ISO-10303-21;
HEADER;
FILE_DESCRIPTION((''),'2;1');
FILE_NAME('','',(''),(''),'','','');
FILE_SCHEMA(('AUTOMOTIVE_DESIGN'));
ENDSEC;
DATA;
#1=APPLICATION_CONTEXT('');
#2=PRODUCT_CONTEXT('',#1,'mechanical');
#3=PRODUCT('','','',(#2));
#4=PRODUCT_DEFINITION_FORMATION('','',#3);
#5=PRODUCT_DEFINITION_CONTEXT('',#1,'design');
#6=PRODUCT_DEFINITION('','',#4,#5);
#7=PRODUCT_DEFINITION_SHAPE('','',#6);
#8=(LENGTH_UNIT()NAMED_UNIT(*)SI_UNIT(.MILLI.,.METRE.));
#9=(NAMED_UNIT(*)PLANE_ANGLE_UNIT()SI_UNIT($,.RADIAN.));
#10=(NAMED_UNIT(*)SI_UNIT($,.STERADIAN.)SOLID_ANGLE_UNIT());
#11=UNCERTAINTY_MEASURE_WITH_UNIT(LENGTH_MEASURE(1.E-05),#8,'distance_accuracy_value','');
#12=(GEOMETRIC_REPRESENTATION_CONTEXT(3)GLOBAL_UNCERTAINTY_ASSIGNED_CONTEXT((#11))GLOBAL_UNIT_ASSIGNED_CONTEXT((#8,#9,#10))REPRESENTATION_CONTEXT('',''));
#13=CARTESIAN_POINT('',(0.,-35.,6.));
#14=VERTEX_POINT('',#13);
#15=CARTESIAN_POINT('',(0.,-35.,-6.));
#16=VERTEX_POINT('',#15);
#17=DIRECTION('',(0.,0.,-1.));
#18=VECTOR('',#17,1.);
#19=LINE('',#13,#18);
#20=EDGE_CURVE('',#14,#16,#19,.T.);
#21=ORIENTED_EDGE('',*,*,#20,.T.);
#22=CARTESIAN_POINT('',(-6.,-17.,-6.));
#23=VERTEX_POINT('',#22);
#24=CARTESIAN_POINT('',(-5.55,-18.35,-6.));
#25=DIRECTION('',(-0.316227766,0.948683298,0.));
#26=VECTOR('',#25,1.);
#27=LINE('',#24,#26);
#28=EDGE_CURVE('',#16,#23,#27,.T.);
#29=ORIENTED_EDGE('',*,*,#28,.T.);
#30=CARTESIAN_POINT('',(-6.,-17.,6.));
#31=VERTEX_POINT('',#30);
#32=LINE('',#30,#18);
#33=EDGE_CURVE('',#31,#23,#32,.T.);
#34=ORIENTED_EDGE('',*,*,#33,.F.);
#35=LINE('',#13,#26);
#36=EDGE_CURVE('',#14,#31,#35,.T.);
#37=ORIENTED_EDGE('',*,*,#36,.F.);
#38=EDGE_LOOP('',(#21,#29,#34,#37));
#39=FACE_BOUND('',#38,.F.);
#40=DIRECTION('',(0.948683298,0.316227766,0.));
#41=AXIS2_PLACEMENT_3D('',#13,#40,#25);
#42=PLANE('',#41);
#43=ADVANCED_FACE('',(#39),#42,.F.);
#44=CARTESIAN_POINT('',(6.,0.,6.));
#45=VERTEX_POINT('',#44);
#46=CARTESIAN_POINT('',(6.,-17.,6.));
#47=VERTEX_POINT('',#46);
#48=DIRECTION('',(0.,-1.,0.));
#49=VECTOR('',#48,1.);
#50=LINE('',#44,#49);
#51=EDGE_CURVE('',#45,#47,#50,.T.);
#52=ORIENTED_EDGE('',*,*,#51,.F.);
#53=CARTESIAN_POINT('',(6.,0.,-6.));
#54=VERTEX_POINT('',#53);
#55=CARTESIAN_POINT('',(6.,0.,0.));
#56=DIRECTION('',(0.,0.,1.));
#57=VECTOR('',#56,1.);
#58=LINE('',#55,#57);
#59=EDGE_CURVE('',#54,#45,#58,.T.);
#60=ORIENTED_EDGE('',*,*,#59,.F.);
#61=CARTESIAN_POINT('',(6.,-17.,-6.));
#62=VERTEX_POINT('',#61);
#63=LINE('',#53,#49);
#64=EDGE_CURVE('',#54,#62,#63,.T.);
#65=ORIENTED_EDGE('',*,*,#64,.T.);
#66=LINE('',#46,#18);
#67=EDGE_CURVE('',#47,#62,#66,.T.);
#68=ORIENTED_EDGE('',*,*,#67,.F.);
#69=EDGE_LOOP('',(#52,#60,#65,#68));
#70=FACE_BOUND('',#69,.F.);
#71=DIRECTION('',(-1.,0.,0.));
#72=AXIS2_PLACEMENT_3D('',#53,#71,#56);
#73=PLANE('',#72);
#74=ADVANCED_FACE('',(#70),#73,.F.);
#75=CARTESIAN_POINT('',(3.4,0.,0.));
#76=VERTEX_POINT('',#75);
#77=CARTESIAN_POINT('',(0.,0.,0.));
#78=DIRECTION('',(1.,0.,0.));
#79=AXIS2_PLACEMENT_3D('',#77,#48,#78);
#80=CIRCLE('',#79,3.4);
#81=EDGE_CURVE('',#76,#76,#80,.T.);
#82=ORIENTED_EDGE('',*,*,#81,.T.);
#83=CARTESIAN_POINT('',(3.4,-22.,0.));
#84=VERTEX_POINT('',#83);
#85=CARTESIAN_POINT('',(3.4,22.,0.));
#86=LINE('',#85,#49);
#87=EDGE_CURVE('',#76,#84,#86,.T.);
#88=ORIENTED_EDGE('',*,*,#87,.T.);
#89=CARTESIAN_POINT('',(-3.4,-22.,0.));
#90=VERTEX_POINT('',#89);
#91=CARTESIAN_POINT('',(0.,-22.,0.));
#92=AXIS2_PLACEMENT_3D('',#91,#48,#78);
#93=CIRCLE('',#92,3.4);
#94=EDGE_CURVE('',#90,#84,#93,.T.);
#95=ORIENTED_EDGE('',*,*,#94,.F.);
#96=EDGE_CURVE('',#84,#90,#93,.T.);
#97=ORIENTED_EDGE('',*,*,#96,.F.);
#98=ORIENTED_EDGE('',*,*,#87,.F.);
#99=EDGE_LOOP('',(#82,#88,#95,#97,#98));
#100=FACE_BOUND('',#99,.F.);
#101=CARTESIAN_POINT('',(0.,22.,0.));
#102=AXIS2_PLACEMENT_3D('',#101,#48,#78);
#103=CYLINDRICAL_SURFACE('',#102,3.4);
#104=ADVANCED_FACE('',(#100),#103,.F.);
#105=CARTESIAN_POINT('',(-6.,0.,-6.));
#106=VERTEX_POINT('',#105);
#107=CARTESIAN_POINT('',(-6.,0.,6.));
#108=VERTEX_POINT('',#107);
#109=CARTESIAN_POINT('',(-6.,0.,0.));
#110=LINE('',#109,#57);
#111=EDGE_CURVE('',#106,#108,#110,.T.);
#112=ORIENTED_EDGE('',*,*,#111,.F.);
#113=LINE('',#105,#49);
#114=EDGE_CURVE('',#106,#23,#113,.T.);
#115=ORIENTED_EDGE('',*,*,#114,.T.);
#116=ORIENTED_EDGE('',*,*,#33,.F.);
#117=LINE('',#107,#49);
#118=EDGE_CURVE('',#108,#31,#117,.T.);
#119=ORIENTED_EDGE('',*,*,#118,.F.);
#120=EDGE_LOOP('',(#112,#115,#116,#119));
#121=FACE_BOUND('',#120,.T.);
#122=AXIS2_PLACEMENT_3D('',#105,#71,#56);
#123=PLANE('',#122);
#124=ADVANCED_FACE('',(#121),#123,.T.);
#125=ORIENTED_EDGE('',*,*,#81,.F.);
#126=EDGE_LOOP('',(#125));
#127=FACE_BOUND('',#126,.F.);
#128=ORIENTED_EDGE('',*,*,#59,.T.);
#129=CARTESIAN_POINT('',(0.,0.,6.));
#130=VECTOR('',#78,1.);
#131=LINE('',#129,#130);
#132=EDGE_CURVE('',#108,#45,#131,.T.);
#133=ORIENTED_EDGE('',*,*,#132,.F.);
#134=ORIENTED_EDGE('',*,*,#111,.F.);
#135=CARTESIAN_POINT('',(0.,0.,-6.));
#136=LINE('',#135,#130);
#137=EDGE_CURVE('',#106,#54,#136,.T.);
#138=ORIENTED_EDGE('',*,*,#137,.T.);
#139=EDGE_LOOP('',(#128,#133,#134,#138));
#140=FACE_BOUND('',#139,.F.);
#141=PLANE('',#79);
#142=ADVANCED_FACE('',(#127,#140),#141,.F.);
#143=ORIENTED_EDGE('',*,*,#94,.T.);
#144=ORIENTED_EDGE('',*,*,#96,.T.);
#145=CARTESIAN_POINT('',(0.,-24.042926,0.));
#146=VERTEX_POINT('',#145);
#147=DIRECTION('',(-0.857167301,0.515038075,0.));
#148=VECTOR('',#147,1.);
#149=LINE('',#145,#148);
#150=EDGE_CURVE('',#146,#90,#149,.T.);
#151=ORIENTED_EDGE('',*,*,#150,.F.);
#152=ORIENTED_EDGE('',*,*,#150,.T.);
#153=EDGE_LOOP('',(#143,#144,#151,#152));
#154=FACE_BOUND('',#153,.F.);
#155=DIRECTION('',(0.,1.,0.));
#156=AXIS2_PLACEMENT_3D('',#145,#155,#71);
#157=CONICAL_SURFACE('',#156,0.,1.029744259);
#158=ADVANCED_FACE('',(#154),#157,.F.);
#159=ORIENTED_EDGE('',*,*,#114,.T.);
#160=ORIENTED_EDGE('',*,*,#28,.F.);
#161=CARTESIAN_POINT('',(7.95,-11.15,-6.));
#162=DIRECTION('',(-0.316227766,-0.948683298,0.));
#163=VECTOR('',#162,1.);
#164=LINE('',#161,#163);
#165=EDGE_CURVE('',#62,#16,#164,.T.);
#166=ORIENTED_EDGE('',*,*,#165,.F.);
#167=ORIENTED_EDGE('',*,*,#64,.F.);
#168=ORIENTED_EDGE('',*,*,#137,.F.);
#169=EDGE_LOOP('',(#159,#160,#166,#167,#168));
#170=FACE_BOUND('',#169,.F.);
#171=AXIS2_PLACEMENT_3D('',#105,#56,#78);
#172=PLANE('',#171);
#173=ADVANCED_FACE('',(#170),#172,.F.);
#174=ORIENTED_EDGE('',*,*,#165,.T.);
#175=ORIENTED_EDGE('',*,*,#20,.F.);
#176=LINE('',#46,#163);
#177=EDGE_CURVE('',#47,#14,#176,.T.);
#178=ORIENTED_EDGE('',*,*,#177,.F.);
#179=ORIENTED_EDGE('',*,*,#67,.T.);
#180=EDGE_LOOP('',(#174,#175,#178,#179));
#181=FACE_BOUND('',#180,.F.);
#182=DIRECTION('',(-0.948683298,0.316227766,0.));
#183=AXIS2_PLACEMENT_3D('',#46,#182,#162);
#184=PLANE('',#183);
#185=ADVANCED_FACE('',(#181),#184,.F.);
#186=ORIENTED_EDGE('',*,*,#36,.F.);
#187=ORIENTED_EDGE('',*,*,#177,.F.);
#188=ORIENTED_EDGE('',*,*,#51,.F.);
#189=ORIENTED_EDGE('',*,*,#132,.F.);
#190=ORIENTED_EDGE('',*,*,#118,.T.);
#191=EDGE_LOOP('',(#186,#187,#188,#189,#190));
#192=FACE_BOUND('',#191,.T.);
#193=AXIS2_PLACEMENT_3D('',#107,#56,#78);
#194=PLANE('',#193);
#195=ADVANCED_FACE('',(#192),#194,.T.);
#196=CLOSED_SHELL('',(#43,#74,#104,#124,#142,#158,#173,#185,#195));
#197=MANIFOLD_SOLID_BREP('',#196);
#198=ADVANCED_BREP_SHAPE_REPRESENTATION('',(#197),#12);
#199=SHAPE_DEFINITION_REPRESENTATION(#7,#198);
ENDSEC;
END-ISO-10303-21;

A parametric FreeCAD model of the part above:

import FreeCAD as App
import Part
import Sketcher
from FreeCAD import Vector


def add_polygon(sketch, points):
    """Adds a closed chain of lines whose ends are joined by coincident constraints."""
    first, n = sketch.GeometryCount, len(points)
    for a, b in zip(points, points[1:] + points[:1]):
        sketch.addGeometry(Part.LineSegment(App.Vector(*a, 0), App.Vector(*b, 0)), False)
    for i in range(n):
        sketch.addConstraint(Sketcher.Constraint("Coincident", first + i, 2, first + (i + 1) % n, 1))

doc = App.newDocument("Part")
body = doc.addObject("PartDesign::Body", "Body")

sketch1 = body.newObject("Sketcher::SketchObject", "Sketch")
sketch1.AttachmentSupport = (doc.getObject("XZ_Plane"), [""])
sketch1.MapMode = "FlatFace"
add_polygon(sketch1, [(-6, 6), (-6, -6), (6, -6), (6, 6)])
sketch1.addConstraint([
    Sketcher.Constraint("Vertical", 0),
    Sketcher.Constraint("Horizontal", 1),
    Sketcher.Constraint("Vertical", 2),
    Sketcher.Constraint("Horizontal", 3),
    Sketcher.Constraint("Symmetric", 0, 2, 2, 2, -1, 1),
    Sketcher.Constraint("Equal", 3, 0),
    Sketcher.Constraint("DistanceX", 1, 1, 1, 2, 12.0),
])
pad1 = body.newObject("PartDesign::Pad", "Pad")
pad1.Profile = sketch1
pad1.Length = 35

sketch2 = body.newObject("Sketcher::SketchObject", "Sketch001")
sketch2.AttachmentSupport = (doc.getObject("XY_Plane"), [""])
sketch2.MapMode = "FlatFace"
sketch2.AttachmentOffset = App.Placement(Vector(0, 0, 6), App.Rotation())
add_polygon(sketch2, [(-6, -35), (0, -35), (-6, -17)])
add_polygon(sketch2, [(6, -17), (0, -35), (6, -35)])
sketch2.addConstraint([
    Sketcher.Constraint("Horizontal", 0),
    Sketcher.Constraint("Vertical", 2),
    Sketcher.Constraint("Horizontal", 4),
    Sketcher.Constraint("Vertical", 5),
    Sketcher.Constraint("Coincident", 3, 2, 0, 2),
    Sketcher.Constraint("Symmetric", 1, 2, 5, 2, -2),
    Sketcher.Constraint("PointOnObject", 0, 2, -2),
    Sketcher.Constraint("DistanceX", 0, 1, 0, 2, 6.0),
    Sketcher.Constraint("DistanceY", 2, 2, 2, 1, 18.0),
    Sketcher.Constraint("DistanceY", 0, 2, -1, 1, 35.0),
])
pocket1 = body.newObject("PartDesign::Pocket", "Pocket")
pocket1.Profile = sketch2
pocket1.Length = 25

sketch3 = body.newObject("Sketcher::SketchObject", "Sketch002")
sketch3.AttachmentSupport = (doc.getObject("XZ_Plane"), [""])
sketch3.MapMode = "FlatFace"
sketch3.addGeometry(Part.Circle(Vector(0, 0, 0), Vector(0, 0, 1), 3.4), False)
sketch3.addConstraint([
    Sketcher.Constraint("Coincident", 0, 3, -1, 1),
    Sketcher.Constraint("Diameter", 0, 6.8),
])
doc.recompute()
hole = body.newObject("PartDesign::Hole", "Hole")
hole.Profile = sketch3
hole.ThreadType = "None"
hole.Diameter = 6.8
hole.DepthType = "Dimension"
hole.Depth = 22
hole.DrillPoint = "Angled"
hole.DrillPointAngle = 118
hole.Reversed = True

doc.recompute()
